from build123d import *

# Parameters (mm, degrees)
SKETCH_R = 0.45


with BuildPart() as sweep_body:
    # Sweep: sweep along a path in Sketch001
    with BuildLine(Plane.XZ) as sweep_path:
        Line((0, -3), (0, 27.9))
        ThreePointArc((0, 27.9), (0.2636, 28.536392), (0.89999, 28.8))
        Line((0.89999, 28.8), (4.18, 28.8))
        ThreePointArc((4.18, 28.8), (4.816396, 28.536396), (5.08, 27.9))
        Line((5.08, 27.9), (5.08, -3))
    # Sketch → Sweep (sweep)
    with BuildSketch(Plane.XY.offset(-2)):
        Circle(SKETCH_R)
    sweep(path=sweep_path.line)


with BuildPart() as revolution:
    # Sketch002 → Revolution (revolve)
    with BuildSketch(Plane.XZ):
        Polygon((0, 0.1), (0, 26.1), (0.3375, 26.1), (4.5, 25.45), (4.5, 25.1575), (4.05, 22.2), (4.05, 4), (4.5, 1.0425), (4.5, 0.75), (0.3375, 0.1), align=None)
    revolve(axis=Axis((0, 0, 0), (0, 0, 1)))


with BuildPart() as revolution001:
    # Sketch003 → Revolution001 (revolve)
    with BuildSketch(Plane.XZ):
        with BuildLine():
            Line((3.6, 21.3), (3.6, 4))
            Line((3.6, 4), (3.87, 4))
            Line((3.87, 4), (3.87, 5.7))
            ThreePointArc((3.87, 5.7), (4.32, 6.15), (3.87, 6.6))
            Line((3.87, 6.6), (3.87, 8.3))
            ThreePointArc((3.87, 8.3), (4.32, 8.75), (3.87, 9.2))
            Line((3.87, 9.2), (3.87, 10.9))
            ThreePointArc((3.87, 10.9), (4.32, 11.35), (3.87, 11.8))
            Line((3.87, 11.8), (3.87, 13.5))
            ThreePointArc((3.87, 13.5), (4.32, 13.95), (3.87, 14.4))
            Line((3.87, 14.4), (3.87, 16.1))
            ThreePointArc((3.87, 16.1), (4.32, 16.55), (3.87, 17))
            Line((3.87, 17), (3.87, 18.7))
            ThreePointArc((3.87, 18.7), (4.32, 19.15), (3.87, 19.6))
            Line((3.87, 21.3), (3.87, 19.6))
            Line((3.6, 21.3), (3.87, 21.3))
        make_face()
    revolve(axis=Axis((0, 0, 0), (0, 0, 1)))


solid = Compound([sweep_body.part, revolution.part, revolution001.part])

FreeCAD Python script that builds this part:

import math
import FreeCAD as App
import Part
import Sketcher

V = App.Vector


def add_polygon(sketch, points):
    """Adds a closed chain of lines whose ends are joined by coincident constraints."""
    first, n = sketch.GeometryCount, len(points)
    for a, b in zip(points, points[1:] + points[:1]):
        sketch.addGeometry(Part.LineSegment(App.Vector(*a, 0), App.Vector(*b, 0)), False)
    for i in range(n):
        sketch.addConstraint(Sketcher.Constraint("Coincident", first + i, 2, first + (i + 1) % n, 1))

doc = App.newDocument("Part")
body = doc.addObject("PartDesign::Body", "Body")

# Sketch on XY plane
sketch1 = body.newObject("Sketcher::SketchObject", "Sketch")
sketch1.AttachmentSupport = (doc.getObject("XY_Plane"), [""])
sketch1.MapMode = "FlatFace"
sketch1.AttachmentOffset = App.Placement(V(0, 0, -2), App.Rotation())
sketch1.addGeometry(Part.Circle(V(0, 0, 0), V(0, 0, 1), 0.45), False)
sketch1.addConstraint([
    Sketcher.Constraint("Coincident", 0, 3, -1, 1),
    Sketcher.Constraint("Diameter", 0, 0.9),
])

# Sketch on XZ plane
sketch2 = body.newObject("Sketcher::SketchObject", "Sketch001")
sketch2.AttachmentSupport = (doc.getObject("XZ_Plane"), [""])
sketch2.MapMode = "FlatFace"
sketch2.addGeometry([
    Part.LineSegment(V(0, -3, 0), V(0, 27.9, 0)),  # 0
    Part.ArcOfCircle(Part.Circle(V(0.9, 27.9, 0), V(0, 0, 1), 0.9), math.radians(90.000659), math.radians(179.999978)),  # 1
    Part.LineSegment(V(0.89999, 28.8, 0), V(4.18, 28.8, 0)),  # 2
    Part.ArcOfCircle(Part.Circle(V(4.18, 27.9, 0), V(0, 0, 1), 0.9), math.radians(0.000022), math.radians(89.999978)),  # 3
    Part.LineSegment(V(5.08, 27.9, 0), V(5.08, -3, 0)),  # 4
], False)
sketch2.addConstraint([
    Sketcher.Constraint("Tangent", 0, 2, 1, 2),
    Sketcher.Constraint("Coincident", 1, 1, 2, 1),
    Sketcher.Constraint("Tangent", 2, 2, 3, 2),
    Sketcher.Constraint("Tangent", 3, 1, 4, 1),
    Sketcher.Constraint("Vertical", 0),
    Sketcher.Constraint("Horizontal", 2),
    Sketcher.Constraint("Vertical", 4),
    Sketcher.Constraint("Equal", 1, 3),
    Sketcher.Constraint("PointOnObject", 0, 1, -2),
    Sketcher.Constraint("Horizontal", 0, 1, 4, 2),
    Sketcher.Constraint("Radius", 1, 0.9),
    Sketcher.Constraint("DistanceY", 0, 1, 0, 2, 30.9),
    Sketcher.Constraint("DistanceY", 0, 1, -1, 1, 3.0),
    Sketcher.Constraint("DistanceX", -1, 1, 3, 3, 4.18),
    Sketcher.Constraint("DistanceX", 2, 1, 2, 2, 3.28001),
])
doc.recompute()

additivepipe = body.newObject("PartDesign::AdditivePipe", "AdditivePipe")
additivepipe.Profile = sketch1
additivepipe.Spine = (sketch2, ["Edge1", "Edge2", "Edge3", "Edge4", "Edge5"])
body2 = doc.addObject("PartDesign::Body", "Body001")

# Sketch on XZ plane
sketch3 = body2.newObject("Sketcher::SketchObject", "Sketch002")
sketch3.AttachmentSupport = (doc.getObject("XZ_Plane001"), [""])
sketch3.MapMode = "FlatFace"
add_polygon(sketch3, [(0, 26.1), (0, 0.1), (0.3375, 0.1), (4.5, 0.75), (4.5, 1.0425), (4.05, 4), (4.05, 22.2), (4.5, 25.1575), (4.5, 25.45), (0.3375, 26.1)])  # lines 0-9
sketch3.addConstraint([
    Sketcher.Constraint("Vertical", 0),
    Sketcher.Constraint("Horizontal", 1),
    Sketcher.Constraint("Vertical", 3),
    Sketcher.Constraint("Vertical", 5),
    Sketcher.Constraint("Vertical", 7),
    Sketcher.Constraint("Horizontal", 9),
    Sketcher.Constraint("PointOnObject", 0, 2, -2),
    Sketcher.Constraint("Vertical", 3, 2, 6, 2),
    Sketcher.Constraint("Vertical", 1, 2, 8, 2),
    Sketcher.Constraint("Equal", 3, 7),
    Sketcher.Constraint("Equal", 4, 6),
    Sketcher.Constraint("Equal", 2, 8),
    Sketcher.Constraint("DistanceY", 0, 2, 0, 1, 26.0),
    Sketcher.Constraint("DistanceY", 5, 1, 5, 2, 18.2),
    Sketcher.Constraint("DistanceY", -1, 1, 4, 2, 4.0),
    Sketcher.Constraint("DistanceX", -1, 1, 2, 2, 4.5),
    Sketcher.Constraint("DistanceY", 2, 2, 7, 2, 24.7),
    Sketcher.Constraint("DistanceX", -1, 1, 4, 2, 4.05),
    Sketcher.Constraint("DistanceX", 1, 1, 1, 2, 0.3375),
    Sketcher.Constraint("DistanceY", 3, 1, 3, 2, 0.2925),
])
revolution = body2.newObject("PartDesign::Revolution", "Revolution")
revolution.Profile = sketch3
revolution.ReferenceAxis = (sketch3, ["V_Axis"])
revolution.Angle = 360
body3 = doc.addObject("PartDesign::Body", "Body002")

# Sketch on XZ plane
sketch4 = body3.newObject("Sketcher::SketchObject", "Sketch003")
sketch4.AttachmentSupport = (doc.getObject("XZ_Plane002"), [""])
sketch4.MapMode = "FlatFace"
sketch4.addGeometry([
    Part.LineSegment(V(3.6, 21.3, 0), V(3.6, 4, 0)),  # 0
    Part.LineSegment(V(3.6, 4, 0), V(3.87, 4, 0)),  # 1
    Part.LineSegment(V(3.87, 4, 0), V(3.87, 5.7, 0)),  # 2
    Part.ArcOfCircle(Part.Circle(V(3.87, 6.15, 0), V(0, 0, 1), 0.45), math.radians(-90), math.radians(90)),  # 3
    Part.LineSegment(V(3.87, 6.6, 0), V(3.87, 8.3, 0)),  # 4
    Part.ArcOfCircle(Part.Circle(V(3.87, 8.75, 0), V(0, 0, 1), 0.45), math.radians(-90), math.radians(90)),  # 5
    Part.LineSegment(V(3.87, 9.2, 0), V(3.87, 10.9, 0)),  # 6
    Part.ArcOfCircle(Part.Circle(V(3.87, 11.35, 0), V(0, 0, 1), 0.45), math.radians(-90), math.radians(90)),  # 7
    Part.LineSegment(V(3.87, 11.8, 0), V(3.87, 13.5, 0)),  # 8
    Part.ArcOfCircle(Part.Circle(V(3.87, 13.95, 0), V(0, 0, 1), 0.45), math.radians(-90), math.radians(90)),  # 9
    Part.LineSegment(V(3.87, 14.4, 0), V(3.87, 16.1, 0)),  # 10
    Part.ArcOfCircle(Part.Circle(V(3.87, 16.55, 0), V(0, 0, 1), 0.45), math.radians(-90), math.radians(90)),  # 11
    Part.LineSegment(V(3.87, 17, 0), V(3.87, 18.7, 0)),  # 12
    Part.ArcOfCircle(Part.Circle(V(3.87, 19.15, 0), V(0, 0, 1), 0.45), math.radians(-90), math.radians(90)),  # 13
    Part.LineSegment(V(3.87, 19.6, 0), V(3.87, 21.3, 0)),  # 14
    Part.LineSegment(V(3.87, 21.3, 0), V(3.6, 21.3, 0)),  # 15
], False)
sketch4.addConstraint([
    Sketcher.Constraint("Coincident", 0, 2, 1, 1),
    Sketcher.Constraint("Coincident", 1, 2, 2, 1),
    Sketcher.Constraint("Coincident", 2, 2, 3, 1),
    Sketcher.Constraint("Coincident", 3, 2, 4, 1),
    Sketcher.Constraint("Coincident", 4, 2, 5, 1),
    Sketcher.Constraint("Coincident", 5, 2, 6, 1),
    Sketcher.Constraint("Coincident", 6, 2, 7, 1),
    Sketcher.Constraint("Coincident", 7, 2, 8, 1),
    Sketcher.Constraint("Coincident", 8, 2, 9, 1),
    Sketcher.Constraint("Coincident", 9, 2, 10, 1),
    Sketcher.Constraint("Coincident", 10, 2, 11, 1),
    Sketcher.Constraint("Coincident", 11, 2, 12, 1),
    Sketcher.Constraint("Coincident", 12, 2, 13, 1),
    Sketcher.Constraint("Coincident", 13, 2, 14, 1),
    Sketcher.Constraint("Coincident", 14, 2, 15, 1),
    Sketcher.Constraint("Coincident", 15, 2, 0, 1),
    Sketcher.Constraint("Vertical", 0),
    Sketcher.Constraint("Horizontal", 1),
    Sketcher.Constraint("Vertical", 2),
    Sketcher.Constraint("Vertical", 4),
    Sketcher.Constraint("Vertical", 6),
    Sketcher.Constraint("Vertical", 8),
    Sketcher.Constraint("Vertical", 10),
    Sketcher.Constraint("Vertical", 12),
    Sketcher.Constraint("Vertical", 14),
    Sketcher.Constraint("Horizontal", 15),
    Sketcher.Constraint("Equal", 3, 5),
    Sketcher.Constraint("Equal", 5, 7),
    Sketcher.Constraint("Equal", 7, 9),
    Sketcher.Constraint("Equal", 9, 11),
    Sketcher.Constraint("Equal", 11, 13),
    Sketcher.Constraint("Vertical", 3, 3, 5, 3),
    Sketcher.Constraint("Vertical", 5, 3, 7, 3),
    Sketcher.Constraint("Vertical", 7, 3, 9, 3),
    Sketcher.Constraint("Vertical", 9, 3, 11, 3),
    Sketcher.Constraint("Vertical", 11, 3, 13, 3),
    Sketcher.Constraint("Vertical", 13, 3, 1, 2),
    Sketcher.Constraint("Vertical", 2, 2, 3, 2),
    Sketcher.Constraint("Vertical", 4, 2, 5, 2),
    Sketcher.Constraint("Vertical", 6, 2, 7, 2),
    Sketcher.Constraint("Vertical", 8, 2, 9, 2),
    Sketcher.Constraint("Vertical", 10, 2, 11, 2),
    Sketcher.Constraint("Vertical", 12, 2, 13, 2),
    Sketcher.Constraint("Equal", 2, 4),
    Sketcher.Constraint("Equal", 4, 6),
    Sketcher.Constraint("Equal", 6, 8),
    Sketcher.Constraint("Equal", 8, 10),
    Sketcher.Constraint("Equal", 10, 12),
    Sketcher.Constraint("Equal", 12, 14),
    Sketcher.Constraint("Radius", 3, 0.45),
    Sketcher.Constraint("DistanceY", 0, 2, 0, 1, 17.3),
    Sketcher.Constraint("DistanceY", -1, 1, 0, 2, 4.0),
    Sketcher.Constraint("DistanceX", 1, 1, 1, 2, 0.27),
    Sketcher.Constraint("DistanceX", -1, 1, 0, 2, 3.6),
])
revolution2 = body3.newObject("PartDesign::Revolution", "Revolution001")
revolution2.Profile = sketch4
revolution2.ReferenceAxis = (sketch4, ["V_Axis"])
revolution2.Angle = 360

doc.recompute()
